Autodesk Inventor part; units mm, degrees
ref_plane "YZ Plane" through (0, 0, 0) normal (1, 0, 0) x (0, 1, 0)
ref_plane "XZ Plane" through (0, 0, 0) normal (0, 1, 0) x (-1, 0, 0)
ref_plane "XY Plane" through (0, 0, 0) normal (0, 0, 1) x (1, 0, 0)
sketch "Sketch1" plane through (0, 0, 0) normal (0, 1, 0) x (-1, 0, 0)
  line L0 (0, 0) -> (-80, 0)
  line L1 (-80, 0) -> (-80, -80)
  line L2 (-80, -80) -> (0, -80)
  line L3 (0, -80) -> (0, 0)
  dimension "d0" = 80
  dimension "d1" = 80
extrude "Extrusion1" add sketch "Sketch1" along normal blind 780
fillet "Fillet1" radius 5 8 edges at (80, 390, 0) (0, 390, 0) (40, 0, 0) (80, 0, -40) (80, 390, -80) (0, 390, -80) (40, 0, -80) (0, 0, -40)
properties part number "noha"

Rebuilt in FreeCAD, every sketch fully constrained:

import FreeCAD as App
import Part
import Sketcher
from FreeCAD import Vector
Q = App.Units.Quantity


def edges_at(feature, points):
    """Names of the edges that pass closest to the given points."""
    edges = feature.Shape.Edges
    near = lambda p: min(range(len(edges)), key=lambda i: edges[i].distToShape(Part.Vertex(*p))[0])
    return sorted({f"Edge{near(p) + 1}" for p in points})

doc = App.newDocument("Part")
body = doc.addObject("PartDesign::Body", "Body")

sketch1 = body.newObject("Sketcher::SketchObject", "Sketch")
sketch1.AttachmentSupport = (doc.getObject("XZ_Plane"), [""])
sketch1.MapMode = "FlatFace"
sketch1.addGeometry(Part.LineSegment(Vector(0, -80, 0), Vector(0, 0, 0)), False)
sketch1.addGeometry(Part.LineSegment(Vector(0, 0, 0), Vector(80, 0, 0)), False)
sketch1.addGeometry(Part.LineSegment(Vector(80, 0, 0), Vector(80, -80, 0)), False)
sketch1.addGeometry(Part.LineSegment(Vector(80, -80, 0), Vector(0, -80, 0)), False)
sketch1.addConstraint(Sketcher.Constraint("Coincident", 0, 2, 1, 1))
sketch1.addConstraint(Sketcher.Constraint("Coincident", 1, 2, 2, 1))
sketch1.addConstraint(Sketcher.Constraint("Coincident", 2, 2, 3, 1))
sketch1.addConstraint(Sketcher.Constraint("Coincident", 3, 2, 0, 1))
sketch1.addConstraint(Sketcher.Constraint("Vertical", 0))
sketch1.addConstraint(Sketcher.Constraint("Horizontal", 1))
sketch1.addConstraint(Sketcher.Constraint("Vertical", 2))
sketch1.addConstraint(Sketcher.Constraint("Horizontal", 3))
sketch1.addConstraint(Sketcher.Constraint("Coincident", 0, 2, -1, 1))
sketch1.addConstraint(Sketcher.Constraint("Equal", 3, 0))
sketch1.addConstraint(Sketcher.Constraint("DistanceX", 1, 1, 1, 2, Q("80 mm")))
pad1 = body.newObject("PartDesign::Pad", "Pad")
pad1.Profile = sketch1
pad1.Length = 780
pad1.Reversed = True
doc.recompute()

fillet = body.newObject("PartDesign::Fillet", "Fillet")
fillet.Base = (pad1, edges_at(pad1, [
    (80, 390, 0),
    (0, 390, 0),
    (40, 0, 0),
    (80, 0, -40),
    (80, 390, -80),
    (0, 390, -80),
    (40, 0, -80),
    (0, 0, -40),
]))
fillet.Radius = 5

doc.recompute()
